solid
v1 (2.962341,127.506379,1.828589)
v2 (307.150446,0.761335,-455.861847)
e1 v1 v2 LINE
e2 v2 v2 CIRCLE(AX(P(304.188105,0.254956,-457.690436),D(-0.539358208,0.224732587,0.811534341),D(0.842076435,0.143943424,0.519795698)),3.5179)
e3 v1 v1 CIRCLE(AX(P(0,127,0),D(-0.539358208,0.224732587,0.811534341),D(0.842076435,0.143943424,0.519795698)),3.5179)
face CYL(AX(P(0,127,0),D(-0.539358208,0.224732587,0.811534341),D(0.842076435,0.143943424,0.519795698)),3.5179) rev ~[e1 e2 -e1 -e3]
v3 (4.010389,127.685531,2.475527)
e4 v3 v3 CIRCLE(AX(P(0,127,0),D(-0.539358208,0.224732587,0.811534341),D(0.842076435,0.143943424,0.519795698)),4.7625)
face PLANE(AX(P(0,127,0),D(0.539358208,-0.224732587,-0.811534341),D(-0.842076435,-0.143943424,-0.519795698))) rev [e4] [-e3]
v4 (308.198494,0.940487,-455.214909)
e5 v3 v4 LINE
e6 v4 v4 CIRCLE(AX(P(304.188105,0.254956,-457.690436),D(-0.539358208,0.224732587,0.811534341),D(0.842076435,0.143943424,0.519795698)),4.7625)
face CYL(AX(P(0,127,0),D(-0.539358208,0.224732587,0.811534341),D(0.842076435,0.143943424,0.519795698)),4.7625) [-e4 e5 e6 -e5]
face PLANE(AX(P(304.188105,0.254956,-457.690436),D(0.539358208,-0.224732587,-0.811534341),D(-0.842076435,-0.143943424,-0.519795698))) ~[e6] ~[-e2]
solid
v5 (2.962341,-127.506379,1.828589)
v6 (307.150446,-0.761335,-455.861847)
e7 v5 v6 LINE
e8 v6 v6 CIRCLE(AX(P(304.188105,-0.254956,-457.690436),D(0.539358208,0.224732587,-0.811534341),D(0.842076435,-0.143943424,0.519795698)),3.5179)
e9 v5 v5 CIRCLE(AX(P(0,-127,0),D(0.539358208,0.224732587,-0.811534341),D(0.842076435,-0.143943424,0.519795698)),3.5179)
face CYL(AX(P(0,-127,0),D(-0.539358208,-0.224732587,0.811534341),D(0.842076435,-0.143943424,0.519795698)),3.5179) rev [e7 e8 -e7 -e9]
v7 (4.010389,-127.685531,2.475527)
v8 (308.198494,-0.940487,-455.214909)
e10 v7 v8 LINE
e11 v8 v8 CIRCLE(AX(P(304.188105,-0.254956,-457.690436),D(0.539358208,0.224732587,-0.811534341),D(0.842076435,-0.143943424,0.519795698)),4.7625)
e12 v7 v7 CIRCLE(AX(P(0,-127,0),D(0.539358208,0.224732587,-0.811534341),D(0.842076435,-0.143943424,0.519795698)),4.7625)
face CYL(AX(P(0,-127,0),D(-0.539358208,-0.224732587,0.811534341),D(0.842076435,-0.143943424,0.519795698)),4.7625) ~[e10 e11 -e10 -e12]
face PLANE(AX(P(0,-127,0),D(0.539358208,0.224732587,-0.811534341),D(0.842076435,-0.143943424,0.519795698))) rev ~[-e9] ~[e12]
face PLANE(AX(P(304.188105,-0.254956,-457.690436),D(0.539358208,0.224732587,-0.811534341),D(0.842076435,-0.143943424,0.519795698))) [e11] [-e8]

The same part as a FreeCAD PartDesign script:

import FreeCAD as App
import Part
import Sketcher
from FreeCAD import Vector
Q = App.Units.Quantity

doc = App.newDocument("Part")
body = doc.addObject("PartDesign::Body", "Body")

sketch1 = doc.addObject("Sketcher::SketchObject", "Sketch")
body.addObject(sketch1)
sketch1.Placement = App.Placement(Vector(-15.393843, -6.414101, 23.162033), App.Rotation(Vector(0.842076435, -0.143943424, 0.519795698), Vector(0, -0.963730021, -0.266879083), Vector(0.539358208, 0.224732587, -0.811534341), "ZXY"))
sketch1.addGeometry(Part.Circle(Vector(18.3, 122.4, 0), Vector(0, 0, 1), 4.8), False)
sketch1.addGeometry(Part.Circle(Vector(18.3, 122.4, 0), Vector(0, 0, 1), 3.5), False)
sketch1.addConstraint(Sketcher.Constraint("Coincident", 1, 3, 0, 3))
sketch1.addConstraint(Sketcher.Constraint("Diameter", 0, Q("0.375 in")))
sketch1.addConstraint(Sketcher.Constraint("Diameter", 1, Q("0.277 in")))
sketch1.addConstraint(Sketcher.Constraint("DistanceX", -1, 1, 0, 3, Q("18.280815 mm")))
sketch1.addConstraint(Sketcher.Constraint("DistanceY", -1, 1, 0, 3, Q("122.393713 mm")))
pad1 = doc.addObject("PartDesign::Pad", "Pad")
body.addObject(pad1)
pad1.Profile = sketch1
pad1.Length = Q("22.204 in")
body2 = doc.addObject("PartDesign::Body", "Body001")
doc.recompute()

mirroring = doc.addObject("Part::Mirroring", "Mirroring")
mirroring.Source = body
mirroring.Base = Vector(0, 0, 0)
mirroring.Normal = Vector(0, -1, 0)
body2.BaseFeature = mirroring
doc.recompute()
mirroring.Visibility = False

doc.recompute()
